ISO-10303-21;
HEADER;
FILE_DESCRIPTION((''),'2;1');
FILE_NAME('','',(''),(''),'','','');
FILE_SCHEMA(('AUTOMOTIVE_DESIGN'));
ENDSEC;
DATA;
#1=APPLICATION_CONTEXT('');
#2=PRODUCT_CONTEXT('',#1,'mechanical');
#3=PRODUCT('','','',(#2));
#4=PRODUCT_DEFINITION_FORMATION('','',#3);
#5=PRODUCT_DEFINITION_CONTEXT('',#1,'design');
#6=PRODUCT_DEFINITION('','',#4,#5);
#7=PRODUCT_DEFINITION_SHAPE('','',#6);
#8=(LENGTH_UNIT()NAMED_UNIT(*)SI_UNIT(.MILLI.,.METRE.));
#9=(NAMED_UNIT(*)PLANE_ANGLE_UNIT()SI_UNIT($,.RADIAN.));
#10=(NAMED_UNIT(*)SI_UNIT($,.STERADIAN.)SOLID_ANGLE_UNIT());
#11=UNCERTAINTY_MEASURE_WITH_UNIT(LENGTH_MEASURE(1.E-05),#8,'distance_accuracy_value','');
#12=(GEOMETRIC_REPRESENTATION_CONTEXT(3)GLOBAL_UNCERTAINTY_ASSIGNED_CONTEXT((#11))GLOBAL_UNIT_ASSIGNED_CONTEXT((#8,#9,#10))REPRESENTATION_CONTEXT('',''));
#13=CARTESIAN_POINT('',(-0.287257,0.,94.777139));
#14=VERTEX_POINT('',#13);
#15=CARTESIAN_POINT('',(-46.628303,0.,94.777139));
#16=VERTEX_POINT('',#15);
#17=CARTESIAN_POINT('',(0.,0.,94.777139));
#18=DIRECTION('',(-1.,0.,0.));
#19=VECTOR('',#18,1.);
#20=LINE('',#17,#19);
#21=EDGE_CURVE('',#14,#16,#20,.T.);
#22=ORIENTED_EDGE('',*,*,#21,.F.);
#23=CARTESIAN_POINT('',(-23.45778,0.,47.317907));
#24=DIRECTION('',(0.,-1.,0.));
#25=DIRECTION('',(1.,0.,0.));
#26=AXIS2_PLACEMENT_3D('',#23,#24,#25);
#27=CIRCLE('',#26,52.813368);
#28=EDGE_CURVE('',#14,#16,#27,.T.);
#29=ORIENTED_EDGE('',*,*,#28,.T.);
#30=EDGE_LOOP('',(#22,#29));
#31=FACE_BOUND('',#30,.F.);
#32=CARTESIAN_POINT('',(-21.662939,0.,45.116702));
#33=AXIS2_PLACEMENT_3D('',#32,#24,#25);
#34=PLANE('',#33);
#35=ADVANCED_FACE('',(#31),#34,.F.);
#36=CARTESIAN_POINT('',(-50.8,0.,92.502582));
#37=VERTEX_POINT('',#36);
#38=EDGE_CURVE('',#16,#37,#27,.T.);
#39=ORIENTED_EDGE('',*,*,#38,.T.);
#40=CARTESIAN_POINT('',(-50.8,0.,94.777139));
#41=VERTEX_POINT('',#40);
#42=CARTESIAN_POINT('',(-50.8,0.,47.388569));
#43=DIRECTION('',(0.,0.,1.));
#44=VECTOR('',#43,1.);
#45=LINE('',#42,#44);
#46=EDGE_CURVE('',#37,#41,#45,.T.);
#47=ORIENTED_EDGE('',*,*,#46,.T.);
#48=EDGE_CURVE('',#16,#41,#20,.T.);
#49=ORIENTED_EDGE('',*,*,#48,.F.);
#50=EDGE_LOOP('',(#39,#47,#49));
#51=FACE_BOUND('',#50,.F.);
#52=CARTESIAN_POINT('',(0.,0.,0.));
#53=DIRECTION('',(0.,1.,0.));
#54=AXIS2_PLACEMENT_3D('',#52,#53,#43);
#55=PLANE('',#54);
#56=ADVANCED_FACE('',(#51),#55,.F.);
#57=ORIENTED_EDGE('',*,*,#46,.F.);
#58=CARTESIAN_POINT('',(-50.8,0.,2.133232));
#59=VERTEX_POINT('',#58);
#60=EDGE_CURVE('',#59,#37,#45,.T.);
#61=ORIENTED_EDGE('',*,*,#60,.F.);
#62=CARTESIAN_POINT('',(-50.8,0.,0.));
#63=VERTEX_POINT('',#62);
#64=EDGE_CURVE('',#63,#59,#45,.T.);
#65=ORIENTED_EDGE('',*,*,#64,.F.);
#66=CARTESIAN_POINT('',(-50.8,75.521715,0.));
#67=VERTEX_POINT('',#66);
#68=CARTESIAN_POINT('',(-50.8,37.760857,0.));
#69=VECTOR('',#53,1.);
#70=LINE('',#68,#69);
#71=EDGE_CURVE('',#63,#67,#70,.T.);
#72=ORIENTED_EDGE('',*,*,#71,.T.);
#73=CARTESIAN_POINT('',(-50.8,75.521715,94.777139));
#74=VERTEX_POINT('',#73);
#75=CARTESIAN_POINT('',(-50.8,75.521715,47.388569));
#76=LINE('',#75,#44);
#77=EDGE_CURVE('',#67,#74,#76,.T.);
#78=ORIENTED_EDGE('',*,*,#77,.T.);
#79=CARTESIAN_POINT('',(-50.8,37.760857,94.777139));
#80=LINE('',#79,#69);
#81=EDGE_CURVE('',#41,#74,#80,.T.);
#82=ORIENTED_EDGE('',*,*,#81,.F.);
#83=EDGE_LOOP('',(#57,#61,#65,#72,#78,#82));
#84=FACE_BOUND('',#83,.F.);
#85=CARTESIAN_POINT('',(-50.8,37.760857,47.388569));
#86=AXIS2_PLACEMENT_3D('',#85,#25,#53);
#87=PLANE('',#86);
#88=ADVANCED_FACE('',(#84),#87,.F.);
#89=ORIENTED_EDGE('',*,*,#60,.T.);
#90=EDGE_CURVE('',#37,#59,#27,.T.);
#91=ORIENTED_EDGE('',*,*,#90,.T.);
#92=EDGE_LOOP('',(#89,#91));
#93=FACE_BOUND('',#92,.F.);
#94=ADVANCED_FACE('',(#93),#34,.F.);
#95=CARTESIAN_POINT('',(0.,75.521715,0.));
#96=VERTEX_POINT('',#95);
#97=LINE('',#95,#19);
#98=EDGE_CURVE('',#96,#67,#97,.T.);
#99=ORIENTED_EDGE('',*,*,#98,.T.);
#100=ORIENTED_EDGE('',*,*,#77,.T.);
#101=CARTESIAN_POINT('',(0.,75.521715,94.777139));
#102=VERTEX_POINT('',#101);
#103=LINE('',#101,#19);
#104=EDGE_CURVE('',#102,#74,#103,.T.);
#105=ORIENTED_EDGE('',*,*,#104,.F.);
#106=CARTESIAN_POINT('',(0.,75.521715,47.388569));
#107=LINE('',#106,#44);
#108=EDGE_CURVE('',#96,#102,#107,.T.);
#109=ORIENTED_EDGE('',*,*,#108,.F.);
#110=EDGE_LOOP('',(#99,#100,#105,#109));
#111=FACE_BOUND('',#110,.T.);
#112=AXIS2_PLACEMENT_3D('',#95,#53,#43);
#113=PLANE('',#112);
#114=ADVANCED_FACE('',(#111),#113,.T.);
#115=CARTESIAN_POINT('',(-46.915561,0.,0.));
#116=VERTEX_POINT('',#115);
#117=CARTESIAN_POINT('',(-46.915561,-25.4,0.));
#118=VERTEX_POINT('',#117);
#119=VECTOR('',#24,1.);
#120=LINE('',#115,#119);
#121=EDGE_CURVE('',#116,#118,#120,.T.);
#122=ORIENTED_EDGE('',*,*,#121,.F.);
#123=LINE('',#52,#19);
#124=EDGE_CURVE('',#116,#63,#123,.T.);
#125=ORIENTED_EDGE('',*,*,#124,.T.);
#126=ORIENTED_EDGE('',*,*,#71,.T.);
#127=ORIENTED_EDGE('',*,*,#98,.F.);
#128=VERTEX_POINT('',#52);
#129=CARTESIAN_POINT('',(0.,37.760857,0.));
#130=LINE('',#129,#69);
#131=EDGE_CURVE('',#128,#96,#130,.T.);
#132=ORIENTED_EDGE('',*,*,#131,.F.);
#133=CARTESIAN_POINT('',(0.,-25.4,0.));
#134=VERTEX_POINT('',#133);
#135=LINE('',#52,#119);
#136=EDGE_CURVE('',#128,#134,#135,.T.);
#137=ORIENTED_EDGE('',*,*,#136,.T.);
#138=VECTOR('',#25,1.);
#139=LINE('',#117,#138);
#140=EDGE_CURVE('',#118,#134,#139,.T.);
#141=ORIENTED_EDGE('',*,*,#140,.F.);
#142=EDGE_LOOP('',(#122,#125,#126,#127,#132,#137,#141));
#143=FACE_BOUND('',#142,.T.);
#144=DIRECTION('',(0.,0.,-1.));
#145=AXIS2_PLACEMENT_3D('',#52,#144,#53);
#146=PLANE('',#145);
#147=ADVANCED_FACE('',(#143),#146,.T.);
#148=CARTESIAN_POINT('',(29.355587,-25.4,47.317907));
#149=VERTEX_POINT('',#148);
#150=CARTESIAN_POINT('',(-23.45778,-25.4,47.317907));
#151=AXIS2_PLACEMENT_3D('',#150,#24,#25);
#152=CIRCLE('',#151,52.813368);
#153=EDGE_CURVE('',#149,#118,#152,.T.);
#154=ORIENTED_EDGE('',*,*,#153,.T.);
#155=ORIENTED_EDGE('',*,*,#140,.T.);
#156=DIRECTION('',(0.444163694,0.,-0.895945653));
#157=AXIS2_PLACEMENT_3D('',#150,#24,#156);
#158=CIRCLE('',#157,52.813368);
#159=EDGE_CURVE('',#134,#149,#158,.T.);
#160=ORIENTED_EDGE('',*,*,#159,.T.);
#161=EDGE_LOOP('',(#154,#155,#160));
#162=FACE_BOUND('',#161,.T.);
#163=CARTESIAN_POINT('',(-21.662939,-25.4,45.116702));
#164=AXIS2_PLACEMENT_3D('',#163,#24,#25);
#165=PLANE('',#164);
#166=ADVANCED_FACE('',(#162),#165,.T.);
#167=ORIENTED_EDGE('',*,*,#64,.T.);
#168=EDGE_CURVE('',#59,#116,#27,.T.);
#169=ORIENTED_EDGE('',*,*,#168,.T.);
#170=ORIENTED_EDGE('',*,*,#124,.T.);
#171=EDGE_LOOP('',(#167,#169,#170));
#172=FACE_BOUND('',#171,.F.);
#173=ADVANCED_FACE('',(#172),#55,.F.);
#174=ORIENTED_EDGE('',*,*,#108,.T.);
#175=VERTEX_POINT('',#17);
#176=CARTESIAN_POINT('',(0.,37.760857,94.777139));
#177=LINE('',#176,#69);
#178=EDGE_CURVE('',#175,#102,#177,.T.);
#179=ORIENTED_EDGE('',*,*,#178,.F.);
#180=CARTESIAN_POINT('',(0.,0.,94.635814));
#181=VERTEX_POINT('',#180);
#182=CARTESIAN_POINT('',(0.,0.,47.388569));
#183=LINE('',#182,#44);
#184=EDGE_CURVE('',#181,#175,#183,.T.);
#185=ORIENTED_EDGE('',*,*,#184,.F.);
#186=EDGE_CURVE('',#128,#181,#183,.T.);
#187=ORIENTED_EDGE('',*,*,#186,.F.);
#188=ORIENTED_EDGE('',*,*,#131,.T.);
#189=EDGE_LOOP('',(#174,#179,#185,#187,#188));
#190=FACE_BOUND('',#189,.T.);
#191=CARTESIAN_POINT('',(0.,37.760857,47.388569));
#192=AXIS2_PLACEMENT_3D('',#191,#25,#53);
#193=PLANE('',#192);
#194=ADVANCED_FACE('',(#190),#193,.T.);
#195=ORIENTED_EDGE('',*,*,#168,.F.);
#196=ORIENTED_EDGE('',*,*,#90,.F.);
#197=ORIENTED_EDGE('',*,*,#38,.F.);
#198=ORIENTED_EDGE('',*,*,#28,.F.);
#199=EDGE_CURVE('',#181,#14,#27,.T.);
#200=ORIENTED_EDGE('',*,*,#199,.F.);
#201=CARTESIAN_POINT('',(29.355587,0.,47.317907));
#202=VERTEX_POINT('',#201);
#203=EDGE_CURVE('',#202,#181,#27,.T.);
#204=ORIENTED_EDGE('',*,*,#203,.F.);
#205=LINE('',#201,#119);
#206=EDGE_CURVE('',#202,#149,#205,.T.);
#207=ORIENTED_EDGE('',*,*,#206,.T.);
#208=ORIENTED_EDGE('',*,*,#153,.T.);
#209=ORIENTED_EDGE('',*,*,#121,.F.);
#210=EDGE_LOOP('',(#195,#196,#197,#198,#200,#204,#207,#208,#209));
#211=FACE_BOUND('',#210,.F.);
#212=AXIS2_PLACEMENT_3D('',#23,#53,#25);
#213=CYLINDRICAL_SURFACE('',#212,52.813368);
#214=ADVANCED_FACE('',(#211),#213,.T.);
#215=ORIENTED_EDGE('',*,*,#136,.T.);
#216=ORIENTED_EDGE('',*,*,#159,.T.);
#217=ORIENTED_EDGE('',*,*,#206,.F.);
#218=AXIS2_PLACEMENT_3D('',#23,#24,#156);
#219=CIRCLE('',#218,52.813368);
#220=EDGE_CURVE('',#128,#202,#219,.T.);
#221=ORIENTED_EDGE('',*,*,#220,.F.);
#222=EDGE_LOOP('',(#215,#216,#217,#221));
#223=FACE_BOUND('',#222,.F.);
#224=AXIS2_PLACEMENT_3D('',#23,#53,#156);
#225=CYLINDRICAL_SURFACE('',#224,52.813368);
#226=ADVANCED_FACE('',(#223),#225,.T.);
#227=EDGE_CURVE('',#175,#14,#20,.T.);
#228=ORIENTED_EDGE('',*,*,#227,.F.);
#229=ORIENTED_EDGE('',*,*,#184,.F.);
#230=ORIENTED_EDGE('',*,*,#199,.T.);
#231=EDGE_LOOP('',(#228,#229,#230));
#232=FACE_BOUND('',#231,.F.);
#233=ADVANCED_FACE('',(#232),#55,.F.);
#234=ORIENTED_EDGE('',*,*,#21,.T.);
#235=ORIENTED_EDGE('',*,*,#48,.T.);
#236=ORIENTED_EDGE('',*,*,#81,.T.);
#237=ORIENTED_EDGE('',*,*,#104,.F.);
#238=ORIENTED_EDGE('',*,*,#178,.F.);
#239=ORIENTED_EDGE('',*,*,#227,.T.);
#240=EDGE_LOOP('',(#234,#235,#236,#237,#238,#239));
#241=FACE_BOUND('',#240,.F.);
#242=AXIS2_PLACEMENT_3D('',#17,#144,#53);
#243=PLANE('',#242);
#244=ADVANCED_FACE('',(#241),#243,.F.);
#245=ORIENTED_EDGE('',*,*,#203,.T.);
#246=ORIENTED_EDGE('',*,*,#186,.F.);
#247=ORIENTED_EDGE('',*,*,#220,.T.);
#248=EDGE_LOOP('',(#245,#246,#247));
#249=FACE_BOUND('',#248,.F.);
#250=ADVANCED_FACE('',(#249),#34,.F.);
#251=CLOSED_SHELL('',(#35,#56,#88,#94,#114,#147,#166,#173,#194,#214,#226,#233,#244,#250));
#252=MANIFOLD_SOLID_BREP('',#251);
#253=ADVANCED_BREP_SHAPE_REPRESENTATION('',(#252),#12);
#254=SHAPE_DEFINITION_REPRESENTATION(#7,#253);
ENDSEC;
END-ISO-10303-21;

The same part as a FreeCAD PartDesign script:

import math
import FreeCAD as App
import Part
import Sketcher

V = App.Vector
Q = App.Units.Quantity


def add_polygon(sketch, points):
    """Adds a closed chain of lines whose ends are joined by coincident constraints."""
    first, n = sketch.GeometryCount, len(points)
    for a, b in zip(points, points[1:] + points[:1]):
        sketch.addGeometry(Part.LineSegment(App.Vector(*a, 0), App.Vector(*b, 0)), False)
    for i in range(n):
        sketch.addConstraint(Sketcher.Constraint("Coincident", first + i, 2, first + (i + 1) % n, 1))

doc = App.newDocument("Part")
body = doc.addObject("PartDesign::Body", "Body")

sketch1 = body.newObject("Sketcher::SketchObject", "Sketch")
sketch1.AttachmentSupport = (doc.getObject("XZ_Plane"), [""])
sketch1.MapMode = "FlatFace"
sketch1.addGeometry(Part.ArcOfCircle(Part.Circle(V(-23, 47, 0), V(0, 0, 1), 53), math.radians(0), math.radians(244)), False)
sketch1.addGeometry(Part.LineSegment(V(-47, 0, 0), V(0, 0, 0)), False)
sketch1.addGeometry(Part.ArcOfCircle(Part.Circle(V(-23, 47, 0), V(0, 0, 1), 53), math.radians(-64), math.radians(0)), False)
sketch1.addConstraint(Sketcher.Constraint("Coincident", 0, 2, 1, 1))
sketch1.addConstraint(Sketcher.Constraint("Coincident", 1, 2, 2, 1))
sketch1.addConstraint(Sketcher.Constraint("Tangent", 2, 2, 0, 1))
sketch1.addConstraint(Sketcher.Constraint("Horizontal", 1))
sketch1.addConstraint(Sketcher.Constraint("Coincident", 1, 2, -1, 1))
sketch1.addConstraint(Sketcher.Constraint("Equal", 0, 2))
sketch1.addConstraint(Sketcher.Constraint("Horizontal", 0, 3, 2, 2))
sketch1.addConstraint(Sketcher.Constraint("Radius", 0, Q("52.813368 mm")))
sketch1.addConstraint(Sketcher.Constraint("DistanceX", 1, 1, 1, 2, Q("46.915561 mm")))
pad1 = body.newObject("PartDesign::Pad", "Pad")
pad1.Profile = sketch1
pad1.Length = Q("1 in")

sketch2 = body.newObject("Sketcher::SketchObject", "Sketch001")
sketch2.AttachmentSupport = (doc.getObject("YZ_Plane"), [""])
sketch2.MapMode = "FlatFace"
add_polygon(sketch2, [(0, 95), (0, 0), (76, 0), (76, 95)])
sketch2.addConstraint(Sketcher.Constraint("Vertical", 0))
sketch2.addConstraint(Sketcher.Constraint("Horizontal", 1))
sketch2.addConstraint(Sketcher.Constraint("Vertical", 2))
sketch2.addConstraint(Sketcher.Constraint("Horizontal", 3))
sketch2.addConstraint(Sketcher.Constraint("Coincident", 0, 2, -1, 1))
sketch2.addConstraint(Sketcher.Constraint("DistanceY", 0, 2, 0, 1, Q("94.777139 mm")))
sketch2.addConstraint(Sketcher.Constraint("DistanceX", 1, 1, 1, 2, Q("75.521715 mm")))
pad2 = body.newObject("PartDesign::Pad", "Pad001")
pad2.Profile = sketch2
pad2.Length = Q("2 in")
pad2.Reversed = True

doc.recompute()
